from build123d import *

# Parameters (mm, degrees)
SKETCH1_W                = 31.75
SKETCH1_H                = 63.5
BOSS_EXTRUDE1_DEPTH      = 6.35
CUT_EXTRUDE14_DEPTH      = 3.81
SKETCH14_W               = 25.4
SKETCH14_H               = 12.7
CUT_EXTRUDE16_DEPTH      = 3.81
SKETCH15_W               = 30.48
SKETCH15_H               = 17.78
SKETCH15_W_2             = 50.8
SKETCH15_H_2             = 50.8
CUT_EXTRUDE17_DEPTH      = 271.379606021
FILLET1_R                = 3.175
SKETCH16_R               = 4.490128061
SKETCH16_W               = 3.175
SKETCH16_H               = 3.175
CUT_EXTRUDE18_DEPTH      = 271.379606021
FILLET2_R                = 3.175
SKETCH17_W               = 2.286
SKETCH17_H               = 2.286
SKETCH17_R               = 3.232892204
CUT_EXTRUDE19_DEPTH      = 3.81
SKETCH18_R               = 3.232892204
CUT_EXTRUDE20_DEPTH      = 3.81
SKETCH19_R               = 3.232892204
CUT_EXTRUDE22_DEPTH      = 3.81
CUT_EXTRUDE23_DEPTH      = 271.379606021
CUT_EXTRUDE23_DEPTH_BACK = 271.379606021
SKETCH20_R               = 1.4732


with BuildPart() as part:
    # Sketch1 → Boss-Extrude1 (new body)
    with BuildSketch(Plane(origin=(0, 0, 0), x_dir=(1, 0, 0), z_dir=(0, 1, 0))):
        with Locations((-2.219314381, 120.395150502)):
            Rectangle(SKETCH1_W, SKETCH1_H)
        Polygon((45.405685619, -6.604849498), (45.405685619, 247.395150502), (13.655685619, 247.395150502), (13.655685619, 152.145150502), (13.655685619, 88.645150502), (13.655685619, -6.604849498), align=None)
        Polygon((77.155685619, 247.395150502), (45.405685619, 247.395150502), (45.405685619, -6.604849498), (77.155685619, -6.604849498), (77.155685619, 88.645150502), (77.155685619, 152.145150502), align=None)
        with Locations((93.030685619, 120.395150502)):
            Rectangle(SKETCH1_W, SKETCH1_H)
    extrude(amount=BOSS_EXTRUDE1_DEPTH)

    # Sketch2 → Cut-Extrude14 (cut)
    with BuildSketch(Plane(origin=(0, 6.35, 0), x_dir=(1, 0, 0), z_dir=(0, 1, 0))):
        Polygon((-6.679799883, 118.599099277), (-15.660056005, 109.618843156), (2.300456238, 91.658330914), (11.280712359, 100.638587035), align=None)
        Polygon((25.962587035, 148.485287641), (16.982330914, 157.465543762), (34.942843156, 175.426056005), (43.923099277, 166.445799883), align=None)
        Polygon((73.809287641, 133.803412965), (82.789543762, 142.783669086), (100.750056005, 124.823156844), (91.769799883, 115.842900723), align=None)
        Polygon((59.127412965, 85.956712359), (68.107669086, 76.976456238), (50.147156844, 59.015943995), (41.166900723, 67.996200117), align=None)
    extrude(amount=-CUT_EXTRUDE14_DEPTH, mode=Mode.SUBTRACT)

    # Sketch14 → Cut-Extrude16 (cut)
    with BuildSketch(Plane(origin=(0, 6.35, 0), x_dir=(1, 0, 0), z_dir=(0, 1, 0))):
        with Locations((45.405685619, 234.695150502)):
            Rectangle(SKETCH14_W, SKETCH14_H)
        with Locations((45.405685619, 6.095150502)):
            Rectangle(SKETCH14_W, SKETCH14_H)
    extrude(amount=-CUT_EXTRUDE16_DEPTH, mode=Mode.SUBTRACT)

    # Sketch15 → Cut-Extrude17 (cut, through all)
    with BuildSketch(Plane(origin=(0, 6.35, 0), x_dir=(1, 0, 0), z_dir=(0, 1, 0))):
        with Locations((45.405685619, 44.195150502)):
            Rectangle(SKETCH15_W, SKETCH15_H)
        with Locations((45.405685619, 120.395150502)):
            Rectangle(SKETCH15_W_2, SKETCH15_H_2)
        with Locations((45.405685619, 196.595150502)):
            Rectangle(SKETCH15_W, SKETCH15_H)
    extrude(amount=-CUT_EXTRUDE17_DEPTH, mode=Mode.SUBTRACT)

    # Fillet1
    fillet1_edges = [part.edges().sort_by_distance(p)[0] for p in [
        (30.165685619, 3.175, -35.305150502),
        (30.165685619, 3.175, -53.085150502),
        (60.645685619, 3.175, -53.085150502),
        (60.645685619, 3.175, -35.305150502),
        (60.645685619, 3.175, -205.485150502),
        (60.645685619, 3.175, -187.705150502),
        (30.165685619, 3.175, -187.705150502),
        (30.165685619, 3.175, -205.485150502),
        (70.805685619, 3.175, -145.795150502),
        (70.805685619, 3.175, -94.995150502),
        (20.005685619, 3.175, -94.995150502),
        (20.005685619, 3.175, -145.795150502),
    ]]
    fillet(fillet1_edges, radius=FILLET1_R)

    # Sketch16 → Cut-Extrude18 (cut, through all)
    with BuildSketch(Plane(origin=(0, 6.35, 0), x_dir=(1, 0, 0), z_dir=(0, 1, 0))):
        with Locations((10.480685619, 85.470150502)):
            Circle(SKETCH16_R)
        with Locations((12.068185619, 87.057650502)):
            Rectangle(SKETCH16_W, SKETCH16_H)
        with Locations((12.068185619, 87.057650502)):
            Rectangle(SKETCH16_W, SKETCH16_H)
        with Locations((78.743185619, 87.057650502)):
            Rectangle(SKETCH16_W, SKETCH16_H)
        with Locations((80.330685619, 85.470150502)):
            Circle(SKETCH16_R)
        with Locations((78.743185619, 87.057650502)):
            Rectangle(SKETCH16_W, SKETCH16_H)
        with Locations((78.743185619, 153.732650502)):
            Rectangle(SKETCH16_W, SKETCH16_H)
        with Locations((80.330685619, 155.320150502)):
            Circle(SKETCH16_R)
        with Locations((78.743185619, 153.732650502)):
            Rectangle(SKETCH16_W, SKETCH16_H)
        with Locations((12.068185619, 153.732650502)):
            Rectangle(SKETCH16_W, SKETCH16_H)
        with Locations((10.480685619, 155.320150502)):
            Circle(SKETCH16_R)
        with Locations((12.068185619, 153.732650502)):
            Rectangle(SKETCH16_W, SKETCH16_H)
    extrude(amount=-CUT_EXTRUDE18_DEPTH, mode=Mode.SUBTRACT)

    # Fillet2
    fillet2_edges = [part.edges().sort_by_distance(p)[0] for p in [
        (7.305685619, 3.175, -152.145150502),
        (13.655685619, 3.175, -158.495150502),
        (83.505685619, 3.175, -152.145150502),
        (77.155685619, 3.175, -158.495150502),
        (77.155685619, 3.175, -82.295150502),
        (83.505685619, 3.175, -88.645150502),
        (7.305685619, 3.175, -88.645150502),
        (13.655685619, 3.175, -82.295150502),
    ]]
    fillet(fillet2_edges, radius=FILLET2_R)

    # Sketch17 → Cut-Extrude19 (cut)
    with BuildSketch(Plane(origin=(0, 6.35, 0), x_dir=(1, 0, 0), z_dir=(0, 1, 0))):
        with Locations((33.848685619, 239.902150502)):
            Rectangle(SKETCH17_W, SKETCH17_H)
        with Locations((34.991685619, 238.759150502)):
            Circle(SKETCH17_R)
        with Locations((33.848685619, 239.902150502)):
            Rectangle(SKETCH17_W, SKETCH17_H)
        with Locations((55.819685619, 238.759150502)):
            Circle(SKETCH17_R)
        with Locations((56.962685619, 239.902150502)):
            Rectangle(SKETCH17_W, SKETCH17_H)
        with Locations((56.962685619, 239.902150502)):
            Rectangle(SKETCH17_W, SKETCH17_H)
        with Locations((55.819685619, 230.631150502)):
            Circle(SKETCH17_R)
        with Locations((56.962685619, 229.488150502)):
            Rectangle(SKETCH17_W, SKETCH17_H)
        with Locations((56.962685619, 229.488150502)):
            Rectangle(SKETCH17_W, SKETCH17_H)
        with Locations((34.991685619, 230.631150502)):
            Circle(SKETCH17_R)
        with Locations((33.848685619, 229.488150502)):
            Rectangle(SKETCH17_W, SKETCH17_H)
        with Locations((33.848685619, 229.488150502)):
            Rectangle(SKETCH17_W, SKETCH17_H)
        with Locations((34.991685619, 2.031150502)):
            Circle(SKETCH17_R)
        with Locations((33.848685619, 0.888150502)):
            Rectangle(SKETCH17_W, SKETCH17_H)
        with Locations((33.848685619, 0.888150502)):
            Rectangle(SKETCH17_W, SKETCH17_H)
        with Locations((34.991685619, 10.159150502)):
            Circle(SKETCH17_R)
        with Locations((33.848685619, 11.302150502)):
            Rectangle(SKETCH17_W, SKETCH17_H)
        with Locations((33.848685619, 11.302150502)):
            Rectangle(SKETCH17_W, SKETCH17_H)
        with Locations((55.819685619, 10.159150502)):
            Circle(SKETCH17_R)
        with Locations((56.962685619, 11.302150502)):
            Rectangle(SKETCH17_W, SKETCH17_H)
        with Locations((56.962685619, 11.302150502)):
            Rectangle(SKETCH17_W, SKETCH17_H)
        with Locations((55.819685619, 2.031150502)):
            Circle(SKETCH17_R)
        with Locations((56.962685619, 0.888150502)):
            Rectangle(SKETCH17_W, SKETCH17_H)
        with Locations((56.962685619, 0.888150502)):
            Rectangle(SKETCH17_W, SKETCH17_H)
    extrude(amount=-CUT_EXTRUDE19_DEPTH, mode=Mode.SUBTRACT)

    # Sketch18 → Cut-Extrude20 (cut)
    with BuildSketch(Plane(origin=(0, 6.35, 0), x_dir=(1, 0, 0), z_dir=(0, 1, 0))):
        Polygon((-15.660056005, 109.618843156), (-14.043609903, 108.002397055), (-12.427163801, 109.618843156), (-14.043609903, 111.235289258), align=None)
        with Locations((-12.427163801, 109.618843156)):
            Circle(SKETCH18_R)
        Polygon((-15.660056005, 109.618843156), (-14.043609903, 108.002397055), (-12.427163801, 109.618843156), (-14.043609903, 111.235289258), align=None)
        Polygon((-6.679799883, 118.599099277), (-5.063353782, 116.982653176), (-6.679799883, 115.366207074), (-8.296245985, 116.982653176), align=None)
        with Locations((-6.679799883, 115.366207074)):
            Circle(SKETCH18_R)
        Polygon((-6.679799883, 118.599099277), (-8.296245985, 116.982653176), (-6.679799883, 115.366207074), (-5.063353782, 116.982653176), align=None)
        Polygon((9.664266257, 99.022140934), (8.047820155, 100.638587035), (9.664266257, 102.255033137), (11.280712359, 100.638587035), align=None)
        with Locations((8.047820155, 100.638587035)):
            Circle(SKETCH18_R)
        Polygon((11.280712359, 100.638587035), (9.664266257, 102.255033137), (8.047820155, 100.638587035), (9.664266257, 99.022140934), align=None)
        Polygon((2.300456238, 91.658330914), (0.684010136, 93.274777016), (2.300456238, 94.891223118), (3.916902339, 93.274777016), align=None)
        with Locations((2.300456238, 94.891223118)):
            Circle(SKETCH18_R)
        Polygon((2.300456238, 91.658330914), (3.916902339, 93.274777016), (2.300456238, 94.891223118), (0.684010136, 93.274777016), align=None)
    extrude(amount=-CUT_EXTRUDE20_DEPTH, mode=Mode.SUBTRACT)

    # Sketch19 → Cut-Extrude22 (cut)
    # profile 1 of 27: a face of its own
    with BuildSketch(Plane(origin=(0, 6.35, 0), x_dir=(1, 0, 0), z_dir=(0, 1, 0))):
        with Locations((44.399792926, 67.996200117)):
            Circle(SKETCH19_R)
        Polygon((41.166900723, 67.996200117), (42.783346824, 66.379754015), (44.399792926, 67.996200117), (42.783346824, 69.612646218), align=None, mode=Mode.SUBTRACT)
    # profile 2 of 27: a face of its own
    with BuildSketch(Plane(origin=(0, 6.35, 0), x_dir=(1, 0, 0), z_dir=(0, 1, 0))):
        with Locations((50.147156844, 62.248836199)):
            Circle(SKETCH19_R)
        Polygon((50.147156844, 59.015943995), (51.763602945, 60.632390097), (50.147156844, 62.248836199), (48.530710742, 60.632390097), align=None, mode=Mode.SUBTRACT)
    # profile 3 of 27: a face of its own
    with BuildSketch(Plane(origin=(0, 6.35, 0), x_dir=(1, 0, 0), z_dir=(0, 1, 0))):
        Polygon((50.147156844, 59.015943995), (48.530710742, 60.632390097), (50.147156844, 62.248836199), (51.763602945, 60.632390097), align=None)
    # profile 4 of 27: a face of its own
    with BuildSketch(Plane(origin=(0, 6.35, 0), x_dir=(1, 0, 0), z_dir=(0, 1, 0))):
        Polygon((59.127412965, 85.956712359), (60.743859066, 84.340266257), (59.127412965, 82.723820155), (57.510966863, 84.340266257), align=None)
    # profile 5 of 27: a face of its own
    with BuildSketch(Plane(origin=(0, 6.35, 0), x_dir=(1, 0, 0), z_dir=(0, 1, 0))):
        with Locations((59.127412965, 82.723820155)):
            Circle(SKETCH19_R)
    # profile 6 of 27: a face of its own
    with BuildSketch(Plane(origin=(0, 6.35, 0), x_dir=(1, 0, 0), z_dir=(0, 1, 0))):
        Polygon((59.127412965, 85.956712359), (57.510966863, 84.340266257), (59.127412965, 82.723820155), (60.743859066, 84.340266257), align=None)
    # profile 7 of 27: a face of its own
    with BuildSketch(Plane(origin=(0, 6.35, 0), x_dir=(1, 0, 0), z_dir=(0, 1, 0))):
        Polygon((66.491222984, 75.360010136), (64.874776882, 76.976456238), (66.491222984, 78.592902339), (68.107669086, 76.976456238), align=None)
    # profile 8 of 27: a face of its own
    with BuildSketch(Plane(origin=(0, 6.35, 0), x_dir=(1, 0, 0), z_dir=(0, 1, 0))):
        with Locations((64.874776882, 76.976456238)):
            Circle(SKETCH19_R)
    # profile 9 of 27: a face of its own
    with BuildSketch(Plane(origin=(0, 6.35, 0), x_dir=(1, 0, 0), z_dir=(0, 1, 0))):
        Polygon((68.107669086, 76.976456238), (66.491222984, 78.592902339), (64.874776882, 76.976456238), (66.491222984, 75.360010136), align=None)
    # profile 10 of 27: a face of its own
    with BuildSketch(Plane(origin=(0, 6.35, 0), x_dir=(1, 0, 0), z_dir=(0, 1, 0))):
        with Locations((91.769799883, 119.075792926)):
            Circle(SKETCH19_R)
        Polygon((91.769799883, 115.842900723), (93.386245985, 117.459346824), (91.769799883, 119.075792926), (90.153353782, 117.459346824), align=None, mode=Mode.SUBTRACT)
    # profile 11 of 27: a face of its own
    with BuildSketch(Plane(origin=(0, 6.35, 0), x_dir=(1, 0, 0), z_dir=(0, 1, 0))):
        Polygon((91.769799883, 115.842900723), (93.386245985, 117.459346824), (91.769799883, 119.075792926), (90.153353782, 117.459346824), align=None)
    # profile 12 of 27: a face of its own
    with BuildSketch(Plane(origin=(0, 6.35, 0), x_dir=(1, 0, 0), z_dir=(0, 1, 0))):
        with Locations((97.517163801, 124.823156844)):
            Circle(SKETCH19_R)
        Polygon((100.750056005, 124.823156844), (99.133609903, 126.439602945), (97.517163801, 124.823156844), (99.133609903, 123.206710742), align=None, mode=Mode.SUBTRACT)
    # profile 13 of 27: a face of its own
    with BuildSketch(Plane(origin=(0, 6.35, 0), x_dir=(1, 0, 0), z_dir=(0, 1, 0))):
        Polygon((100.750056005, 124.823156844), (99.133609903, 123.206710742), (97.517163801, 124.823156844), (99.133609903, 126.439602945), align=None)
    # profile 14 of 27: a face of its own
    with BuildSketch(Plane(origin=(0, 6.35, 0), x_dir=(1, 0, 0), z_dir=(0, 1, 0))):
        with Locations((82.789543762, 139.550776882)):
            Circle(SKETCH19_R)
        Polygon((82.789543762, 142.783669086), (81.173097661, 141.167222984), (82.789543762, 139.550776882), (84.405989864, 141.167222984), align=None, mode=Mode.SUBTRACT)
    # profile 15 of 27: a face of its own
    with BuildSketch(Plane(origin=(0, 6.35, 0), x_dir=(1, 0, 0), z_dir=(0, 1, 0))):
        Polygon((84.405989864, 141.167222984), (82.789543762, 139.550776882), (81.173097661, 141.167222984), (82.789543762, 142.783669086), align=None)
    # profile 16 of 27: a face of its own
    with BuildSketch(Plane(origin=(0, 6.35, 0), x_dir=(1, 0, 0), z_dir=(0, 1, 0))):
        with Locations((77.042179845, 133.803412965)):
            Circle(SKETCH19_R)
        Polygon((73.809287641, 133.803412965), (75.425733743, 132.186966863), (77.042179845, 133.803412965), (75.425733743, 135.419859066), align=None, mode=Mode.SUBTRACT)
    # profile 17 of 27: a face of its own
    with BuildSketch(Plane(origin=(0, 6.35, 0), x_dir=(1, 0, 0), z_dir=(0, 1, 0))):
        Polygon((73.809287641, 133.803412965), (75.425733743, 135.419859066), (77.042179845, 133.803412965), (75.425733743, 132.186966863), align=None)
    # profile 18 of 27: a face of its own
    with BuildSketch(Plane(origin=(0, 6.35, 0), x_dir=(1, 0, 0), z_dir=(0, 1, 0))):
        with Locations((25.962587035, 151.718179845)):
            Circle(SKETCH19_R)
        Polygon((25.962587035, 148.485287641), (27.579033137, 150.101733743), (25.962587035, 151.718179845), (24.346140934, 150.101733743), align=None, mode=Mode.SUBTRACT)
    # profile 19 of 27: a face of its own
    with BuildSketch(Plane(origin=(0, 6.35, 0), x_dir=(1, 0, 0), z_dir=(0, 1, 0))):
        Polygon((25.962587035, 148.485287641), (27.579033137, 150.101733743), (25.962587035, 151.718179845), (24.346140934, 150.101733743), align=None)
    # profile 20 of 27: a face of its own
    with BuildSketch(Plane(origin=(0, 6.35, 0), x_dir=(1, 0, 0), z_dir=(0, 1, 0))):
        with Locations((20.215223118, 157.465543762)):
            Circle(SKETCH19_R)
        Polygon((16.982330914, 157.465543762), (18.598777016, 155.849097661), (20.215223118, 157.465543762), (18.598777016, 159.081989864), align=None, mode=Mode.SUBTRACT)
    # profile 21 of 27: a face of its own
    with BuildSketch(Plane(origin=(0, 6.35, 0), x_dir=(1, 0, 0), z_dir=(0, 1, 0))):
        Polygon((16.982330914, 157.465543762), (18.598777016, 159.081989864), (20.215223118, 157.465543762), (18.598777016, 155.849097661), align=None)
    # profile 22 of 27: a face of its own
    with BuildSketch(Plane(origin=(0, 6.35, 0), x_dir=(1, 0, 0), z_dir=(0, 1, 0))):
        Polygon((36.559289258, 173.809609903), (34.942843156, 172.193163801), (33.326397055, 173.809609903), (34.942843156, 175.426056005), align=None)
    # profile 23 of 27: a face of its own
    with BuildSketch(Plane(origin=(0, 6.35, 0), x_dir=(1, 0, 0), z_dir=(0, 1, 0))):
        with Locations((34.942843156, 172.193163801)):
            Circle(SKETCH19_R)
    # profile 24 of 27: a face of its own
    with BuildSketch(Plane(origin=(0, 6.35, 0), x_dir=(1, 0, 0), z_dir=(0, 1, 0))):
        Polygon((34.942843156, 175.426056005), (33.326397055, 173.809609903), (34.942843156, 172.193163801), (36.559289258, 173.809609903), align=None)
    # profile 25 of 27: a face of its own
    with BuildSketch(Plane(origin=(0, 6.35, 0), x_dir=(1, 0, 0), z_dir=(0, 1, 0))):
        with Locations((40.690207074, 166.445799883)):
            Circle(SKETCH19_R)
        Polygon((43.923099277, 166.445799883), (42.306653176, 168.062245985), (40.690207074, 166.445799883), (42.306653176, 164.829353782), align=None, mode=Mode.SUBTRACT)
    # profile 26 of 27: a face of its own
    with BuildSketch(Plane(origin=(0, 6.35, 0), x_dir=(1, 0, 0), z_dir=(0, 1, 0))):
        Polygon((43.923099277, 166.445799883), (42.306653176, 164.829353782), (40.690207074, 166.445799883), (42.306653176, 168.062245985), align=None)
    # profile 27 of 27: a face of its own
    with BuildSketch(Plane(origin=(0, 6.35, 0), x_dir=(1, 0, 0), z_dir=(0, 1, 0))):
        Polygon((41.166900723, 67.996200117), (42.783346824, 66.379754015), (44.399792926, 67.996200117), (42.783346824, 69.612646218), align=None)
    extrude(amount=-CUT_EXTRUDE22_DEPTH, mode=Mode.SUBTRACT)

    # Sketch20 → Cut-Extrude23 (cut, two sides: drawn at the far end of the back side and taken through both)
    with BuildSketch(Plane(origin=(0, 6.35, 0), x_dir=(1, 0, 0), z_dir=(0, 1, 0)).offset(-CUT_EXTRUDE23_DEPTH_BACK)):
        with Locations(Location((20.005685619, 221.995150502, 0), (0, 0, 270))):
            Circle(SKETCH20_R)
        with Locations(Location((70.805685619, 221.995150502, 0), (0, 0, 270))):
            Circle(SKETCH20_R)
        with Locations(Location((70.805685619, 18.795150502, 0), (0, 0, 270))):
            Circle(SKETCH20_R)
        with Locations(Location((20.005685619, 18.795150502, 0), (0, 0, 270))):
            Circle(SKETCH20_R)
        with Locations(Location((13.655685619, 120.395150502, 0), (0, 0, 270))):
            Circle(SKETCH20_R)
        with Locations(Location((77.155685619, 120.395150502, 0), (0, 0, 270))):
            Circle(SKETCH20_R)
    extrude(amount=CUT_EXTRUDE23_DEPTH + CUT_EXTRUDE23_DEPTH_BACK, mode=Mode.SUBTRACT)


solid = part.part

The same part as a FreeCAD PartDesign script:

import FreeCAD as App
import Part
import Sketcher

V = App.Vector
Q = App.Units.Quantity


def edges_at(feature, points):
    """Names of the edges that pass closest to the given points."""
    edges = feature.Shape.Edges
    near = lambda p: min(range(len(edges)), key=lambda i: edges[i].distToShape(Part.Vertex(*p))[0])
    return sorted({f"Edge{near(p) + 1}" for p in points})

doc = App.newDocument("Part")
body = doc.addObject("PartDesign::Body", "Body")

# Sketch on XZ plane
sketch1 = body.newObject("Sketcher::SketchObject", "Sketch")
sketch1.AttachmentSupport = (doc.getObject("XZ_Plane"), [""])
sketch1.MapMode = "FlatFace"
sketch1.addGeometry([
    Part.LineSegment(V(-18, -152, 0), V(-18, -89, 0)),  # 0
    Part.LineSegment(V(-18, -89, 0), V(14, -89, 0)),  # 1
    Part.LineSegment(V(14, -89, 0), V(14, 7, 0)),  # 2
    Part.LineSegment(V(14, 7, 0), V(77, 7, 0)),  # 3
    Part.LineSegment(V(77, 7, 0), V(77, -89, 0)),  # 4
    Part.LineSegment(V(77, -89, 0), V(109, -89, 0)),  # 5
    Part.LineSegment(V(109, -89, 0), V(109, -152, 0)),  # 6
    Part.LineSegment(V(109, -152, 0), V(77, -152, 0)),  # 7
    Part.LineSegment(V(77, -152, 0), V(77, -247, 0)),  # 8
    Part.LineSegment(V(77, -247, 0), V(14, -247, 0)),  # 9
    Part.LineSegment(V(14, -247, 0), V(14, -152, 0)),  # 10
    Part.LineSegment(V(14, -152, 0), V(-18, -152, 0)),  # 11
], False)
sketch1.addConstraint([
    Sketcher.Constraint("Coincident", 0, 2, 1, 1),
    Sketcher.Constraint("Coincident", 1, 2, 2, 1),
    Sketcher.Constraint("Coincident", 2, 2, 3, 1),
    Sketcher.Constraint("Coincident", 3, 2, 4, 1),
    Sketcher.Constraint("Coincident", 4, 2, 5, 1),
    Sketcher.Constraint("Coincident", 5, 2, 6, 1),
    Sketcher.Constraint("Coincident", 6, 2, 7, 1),
    Sketcher.Constraint("Coincident", 7, 2, 8, 1),
    Sketcher.Constraint("Coincident", 8, 2, 9, 1),
    Sketcher.Constraint("Coincident", 9, 2, 10, 1),
    Sketcher.Constraint("Coincident", 10, 2, 11, 1),
    Sketcher.Constraint("Coincident", 11, 2, 0, 1),
    Sketcher.Constraint("Vertical", 0),
    Sketcher.Constraint("Horizontal", 1),
    Sketcher.Constraint("Vertical", 2),
    Sketcher.Constraint("Horizontal", 3),
    Sketcher.Constraint("Vertical", 4),
    Sketcher.Constraint("Horizontal", 5),
    Sketcher.Constraint("Vertical", 6),
    Sketcher.Constraint("Horizontal", 7),
    Sketcher.Constraint("Vertical", 8),
    Sketcher.Constraint("Horizontal", 9),
    Sketcher.Constraint("Vertical", 10),
    Sketcher.Constraint("Horizontal", 11),
    Sketcher.Constraint("Horizontal", 1, 2, 4, 2),
    Sketcher.Constraint("Horizontal", 7, 2, 10, 2),
    Sketcher.Constraint("Vertical", 4, 2, 7, 2),
    Sketcher.Constraint("Vertical", 2, 2, 9, 2),
    Sketcher.Constraint("Equal", 1, 5),
    Sketcher.Constraint("Equal", 9, 0),
    Sketcher.Constraint("Equal", 4, 8),
    Sketcher.Constraint("DistanceX", 3, 1, 3, 2, Q("2.5 in")),
    Sketcher.Constraint("DistanceX", 0, 2, 5, 2, Q("5 in")),
    Sketcher.Constraint("DistanceY", 2, 1, 2, 2, Q("3.75 in")),
    Sketcher.Constraint("DistanceY", 0, 2, -1, 1, Q("88.645151 mm")),
    Sketcher.Constraint("DistanceX", 0, 2, -1, 1, Q("18.094314 mm")),
])
pad1 = body.newObject("PartDesign::Pad", "Pad")
pad1.Profile = sketch1
pad1.Length = Q("0.25 in")
pad1.Reversed = True

# Sketch on XZ plane
sketch2 = body.newObject("Sketcher::SketchObject", "Sketch001")
sketch2.AttachmentSupport = (doc.getObject("XZ_Plane"), [""])
sketch2.MapMode = "FlatFace"
sketch2.AttachmentOffset = App.Placement(V(0, 0, -0.25 * 25.4), App.Rotation())
sketch2.addGeometry([
    Part.LineSegment(V(-7, -119, 0), V(-16, -110, 0)),  # 0
    Part.LineSegment(V(-16, -110, 0), V(2, -92, 0)),  # 1
    Part.LineSegment(V(2, -92, 0), V(11, -101, 0)),  # 2
    Part.LineSegment(V(11, -101, 0), V(-7, -119, 0)),  # 3
    Part.LineSegment(V(17, -157, 0), V(26, -148, 0)),  # 4
    Part.LineSegment(V(26, -148, 0), V(44, -166, 0)),  # 5
    Part.LineSegment(V(44, -166, 0), V(35, -175, 0)),  # 6
    Part.LineSegment(V(35, -175, 0), V(17, -157, 0)),  # 7
    Part.LineSegment(V(83, -143, 0), V(74, -134, 0)),  # 8
    Part.LineSegment(V(74, -134, 0), V(92, -116, 0)),  # 9
    Part.LineSegment(V(92, -116, 0), V(101, -125, 0)),  # 10
    Part.LineSegment(V(101, -125, 0), V(83, -143, 0)),  # 11
    Part.LineSegment(V(68, -77, 0), V(59, -86, 0)),  # 12
    Part.LineSegment(V(59, -86, 0), V(41, -68, 0)),  # 13
    Part.LineSegment(V(41, -68, 0), V(50, -59, 0)),  # 14
    Part.LineSegment(V(50, -59, 0), V(68, -77, 0)),  # 15
], False)
sketch2.addConstraint([
    Sketcher.Constraint("Coincident", 0, 2, 1, 1),
    Sketcher.Constraint("Coincident", 1, 2, 2, 1),
    Sketcher.Constraint("Coincident", 2, 2, 3, 1),
    Sketcher.Constraint("Coincident", 3, 2, 0, 1),
    Sketcher.Constraint("Coincident", 4, 2, 5, 1),
    Sketcher.Constraint("Coincident", 5, 2, 6, 1),
    Sketcher.Constraint("Coincident", 6, 2, 7, 1),
    Sketcher.Constraint("Coincident", 7, 2, 4, 1),
    Sketcher.Constraint("Coincident", 8, 2, 9, 1),
    Sketcher.Constraint("Coincident", 9, 2, 10, 1),
    Sketcher.Constraint("Coincident", 10, 2, 11, 1),
    Sketcher.Constraint("Coincident", 11, 2, 8, 1),
    Sketcher.Constraint("Coincident", 12, 2, 13, 1),
    Sketcher.Constraint("Coincident", 13, 2, 14, 1),
    Sketcher.Constraint("Coincident", 14, 2, 15, 1),
    Sketcher.Constraint("Coincident", 15, 2, 12, 1),
    Sketcher.Constraint("Perpendicular", 0, 1),
    Sketcher.Constraint("Perpendicular", 1, 2),
    Sketcher.Constraint("Perpendicular", 2, 3),
    Sketcher.Constraint("Parallel", 3, 4),
    Sketcher.Constraint("Perpendicular", 4, 5),
    Sketcher.Constraint("Perpendicular", 5, 6),
    Sketcher.Constraint("Perpendicular", 6, 7),
    Sketcher.Constraint("Parallel", 7, 8),
    Sketcher.Constraint("Perpendicular", 8, 9),
    Sketcher.Constraint("Perpendicular", 9, 10),
    Sketcher.Constraint("Perpendicular", 10, 11),
    Sketcher.Constraint("Parallel", 11, 12),
    Sketcher.Constraint("Perpendicular", 12, 13),
    Sketcher.Constraint("Perpendicular", 13, 14),
    Sketcher.Constraint("Perpendicular", 14, 15),
    Sketcher.Constraint("Equal", 2, 4),
    Sketcher.Constraint("Equal", 3, 5),
    Sketcher.Constraint("Equal", 6, 8),
    Sketcher.Constraint("Equal", 7, 9),
    Sketcher.Constraint("Equal", 10, 12),
    Sketcher.Constraint("Equal", 11, 13),
    Sketcher.Constraint("Distance", 1, Q("1 in")),
    Sketcher.Constraint("Angle", 0, Q("135 deg")),
    Sketcher.Constraint("Distance", 0, Q("0.5 in")),
    Sketcher.Constraint("DistanceX", 3, 2, -1, 1, Q("6.6798 mm")),
    Sketcher.Constraint("DistanceY", 3, 2, -1, 1, Q("118.599099 mm")),
    Sketcher.Constraint("DistanceX", -1, 1, 5, 2, Q("43.923099 mm")),
    Sketcher.Constraint("DistanceY", 5, 2, -1, 1, Q("166.4458 mm")),
    Sketcher.Constraint("DistanceX", -1, 1, 9, 2, Q("91.7698 mm")),
    Sketcher.Constraint("DistanceY", 9, 2, -1, 1, Q("115.842901 mm")),
    Sketcher.Constraint("DistanceX", -1, 1, 13, 2, Q("41.166901 mm")),
    Sketcher.Constraint("DistanceY", 13, 2, -1, 1, Q("67.9962 mm")),
])
pocket1 = body.newObject("PartDesign::Pocket", "Pocket")
pocket1.Profile = sketch2
pocket1.Length = Q("0.15 in")
pocket1.Reversed = True

# Sketch on XZ plane
sketch3 = body.newObject("Sketcher::SketchObject", "Sketch002")
sketch3.AttachmentSupport = (doc.getObject("XZ_Plane"), [""])
sketch3.MapMode = "FlatFace"
sketch3.AttachmentOffset = App.Placement(V(0, 0, -0.25 * 25.4), App.Rotation())
sketch3.addGeometry([
    Part.LineSegment(V(33, -241, 0), V(33, -228, 0)),  # 0
    Part.LineSegment(V(33, -228, 0), V(58, -228, 0)),  # 1
    Part.LineSegment(V(58, -228, 0), V(58, -241, 0)),  # 2
    Part.LineSegment(V(58, -241, 0), V(33, -241, 0)),  # 3
    Part.LineSegment(V(33, -12, 0), V(33, 0, 0)),  # 4
    Part.LineSegment(V(33, 0, 0), V(58, 0, 0)),  # 5
    Part.LineSegment(V(58, 0, 0), V(58, -12, 0)),  # 6
    Part.LineSegment(V(58, -12, 0), V(33, -12, 0)),  # 7
], False)
sketch3.addConstraint([
    Sketcher.Constraint("Coincident", 0, 2, 1, 1),
    Sketcher.Constraint("Coincident", 1, 2, 2, 1),
    Sketcher.Constraint("Coincident", 2, 2, 3, 1),
    Sketcher.Constraint("Coincident", 3, 2, 0, 1),
    Sketcher.Constraint("Coincident", 4, 2, 5, 1),
    Sketcher.Constraint("Coincident", 5, 2, 6, 1),
    Sketcher.Constraint("Coincident", 6, 2, 7, 1),
    Sketcher.Constraint("Coincident", 7, 2, 4, 1),
    Sketcher.Constraint("Vertical", 0),
    Sketcher.Constraint("Horizontal", 1),
    Sketcher.Constraint("Vertical", 2),
    Sketcher.Constraint("Horizontal", 3),
    Sketcher.Constraint("Vertical", 4),
    Sketcher.Constraint("Horizontal", 5),
    Sketcher.Constraint("Vertical", 6),
    Sketcher.Constraint("Horizontal", 7),
    Sketcher.Constraint("Vertical", 3, 2, 4, 2),
    Sketcher.Constraint("Vertical", 2, 2, 5, 2),
    Sketcher.Constraint("Equal", 2, 4),
    Sketcher.Constraint("DistanceX", 1, 1, 1, 2, Q("1 in")),
    Sketcher.Constraint("DistanceY", 0, 1, 0, 2, Q("0.5 in")),
    Sketcher.Constraint("DistanceY", 0, 2, 4, 2, Q("9 in")),
    Sketcher.Constraint("DistanceY", 0, 2, -1, 1, Q("228.345151 mm")),
    Sketcher.Constraint("DistanceX", -1, 1, 0, 2, Q("32.705686 mm")),
])
pocket2 = body.newObject("PartDesign::Pocket", "Pocket001")
pocket2.Profile = sketch3
pocket2.Length = Q("0.15 in")
pocket2.Reversed = True

# Sketch on XZ plane
sketch4 = body.newObject("Sketcher::SketchObject", "Sketch003")
sketch4.AttachmentSupport = (doc.getObject("XZ_Plane"), [""])
sketch4.MapMode = "FlatFace"
sketch4.AttachmentOffset = App.Placement(V(0, 0, -0.25 * 25.4), App.Rotation())
sketch4.addGeometry([
    Part.LineSegment(V(30, -53, 0), V(30, -35, 0)),  # 0
    Part.LineSegment(V(30, -35, 0), V(61, -35, 0)),  # 1
    Part.LineSegment(V(61, -35, 0), V(61, -53, 0)),  # 2
    Part.LineSegment(V(61, -53, 0), V(30, -53, 0)),  # 3
    Part.LineSegment(V(20, -146, 0), V(20, -95, 0)),  # 4
    Part.LineSegment(V(20, -95, 0), V(71, -95, 0)),  # 5
    Part.LineSegment(V(71, -95, 0), V(71, -146, 0)),  # 6
    Part.LineSegment(V(71, -146, 0), V(20, -146, 0)),  # 7
    Part.LineSegment(V(30, -205, 0), V(30, -188, 0)),  # 8
    Part.LineSegment(V(30, -188, 0), V(61, -188, 0)),  # 9
    Part.LineSegment(V(61, -188, 0), V(61, -205, 0)),  # 10
    Part.LineSegment(V(61, -205, 0), V(30, -205, 0)),  # 11
], False)
sketch4.addConstraint([
    Sketcher.Constraint("Coincident", 0, 2, 1, 1),
    Sketcher.Constraint("Coincident", 1, 2, 2, 1),
    Sketcher.Constraint("Coincident", 2, 2, 3, 1),
    Sketcher.Constraint("Coincident", 3, 2, 0, 1),
    Sketcher.Constraint("Coincident", 4, 2, 5, 1),
    Sketcher.Constraint("Coincident", 5, 2, 6, 1),
    Sketcher.Constraint("Coincident", 6, 2, 7, 1),
    Sketcher.Constraint("Coincident", 7, 2, 4, 1),
    Sketcher.Constraint("Coincident", 8, 2, 9, 1),
    Sketcher.Constraint("Coincident", 9, 2, 10, 1),
    Sketcher.Constraint("Coincident", 10, 2, 11, 1),
    Sketcher.Constraint("Coincident", 11, 2, 8, 1),
    Sketcher.Constraint("Vertical", 0),
    Sketcher.Constraint("Horizontal", 1),
    Sketcher.Constraint("Vertical", 2),
    Sketcher.Constraint("Horizontal", 3),
    Sketcher.Constraint("Vertical", 4),
    Sketcher.Constraint("Horizontal", 5),
    Sketcher.Constraint("Vertical", 6),
    Sketcher.Constraint("Horizontal", 7),
    Sketcher.Constraint("Vertical", 8),
    Sketcher.Constraint("Horizontal", 9),
    Sketcher.Constraint("Vertical", 10),
    Sketcher.Constraint("Horizontal", 11),
    Sketcher.Constraint("Vertical", 3, 2, 8, 2),
    Sketcher.Constraint("Vertical", 2, 2, 9, 2),
    Sketcher.Constraint("Equal", 7, 4),
    Sketcher.Constraint("Equal", 2, 8),
    Sketcher.Constraint("DistanceX", 5, 1, 5, 2, Q("2 in")),
    Sketcher.Constraint("DistanceX", 1, 1, 1, 2, Q("1.2 in")),
    Sketcher.Constraint("DistanceY", 0, 1, 0, 2, Q("0.7 in")),
    Sketcher.Constraint("DistanceX", 4, 2, 3, 2, Q("0.4 in")),
    Sketcher.Constraint("DistanceY", 8, 2, 3, 2, Q("5.3 in")),
    Sketcher.Constraint("DistanceY", 4, 2, 3, 2, Q("1.65 in")),
    Sketcher.Constraint("DistanceY", 0, 2, -1, 1, Q("35.305151 mm")),
    Sketcher.Constraint("DistanceX", -1, 1, 0, 2, Q("30.165686 mm")),
])
pocket3 = body.newObject("PartDesign::Pocket", "Pocket002")
pocket3.Profile = sketch4
pocket3.Type = "ThroughAll"
pocket3.Reversed = True
doc.recompute()

fillet = body.newObject("PartDesign::Fillet", "Fillet")
fillet.Base = (pocket3, edges_at(pocket3, [
    (30.166, 3.175, -35.305),
    (30.166, 3.175, -53.085),
    (60.646, 3.175, -53.085),
    (60.646, 3.175, -35.305),
    (60.646, 3.175, -205.485),
    (60.646, 3.175, -187.705),
    (30.166, 3.175, -187.705),
    (30.166, 3.175, -205.485),
    (70.806, 3.175, -145.795),
    (70.806, 3.175, -94.995),
    (20.006, 3.175, -94.995),
    (20.006, 3.175, -145.795),
]))
fillet.Radius = Q("0.125 in")

# Sketch on XZ plane
sketch5 = body.newObject("Sketcher::SketchObject", "Sketch004")
sketch5.AttachmentSupport = (doc.getObject("XZ_Plane"), [""])
sketch5.MapMode = "FlatFace"
sketch5.AttachmentOffset = App.Placement(V(0, 0, -0.25 * 25.4), App.Rotation())
sketch5.addGeometry([
    Part.Circle(V(10.5, -85.5, 0), V(0, 0, 1), 4.5),
    Part.Circle(V(80.3, -85.5, 0), V(0, 0, 1), 4.5),
    Part.Circle(V(80.3, -155.3, 0), V(0, 0, 1), 4.5),
    Part.Circle(V(10.5, -155.3, 0), V(0, 0, 1), 4.5),
], False)
sketch5.addConstraint([
    Sketcher.Constraint("Equal", 0, 1),
    Sketcher.Constraint("Equal", 1, 2),
    Sketcher.Constraint("Equal", 2, 3),
    Sketcher.Constraint("Horizontal", 0, 3, 1, 3),
    Sketcher.Constraint("Horizontal", 2, 3, 3, 3),
    Sketcher.Constraint("Vertical", 1, 3, 2, 3),
    Sketcher.Constraint("Vertical", 0, 3, 3, 3),
    Sketcher.Constraint("DistanceX", 0, 3, 1, 3, Q("2.75 in")),
    Sketcher.Constraint("DistanceY", 2, 3, 1, 3, Q("2.75 in")),
    Sketcher.Constraint("Diameter", 0, Q("8.980256 mm")),
    Sketcher.Constraint("DistanceY", 0, 3, -1, 1, Q("85.470151 mm")),
    Sketcher.Constraint("DistanceX", -1, 1, 0, 3, Q("10.480686 mm")),
])
pocket4 = body.newObject("PartDesign::Pocket", "Pocket003")
pocket4.Profile = sketch5
pocket4.Type = "ThroughAll"
pocket4.Reversed = True
doc.recompute()

fillet2 = body.newObject("PartDesign::Fillet", "Fillet001")
fillet2.Base = (pocket4, edges_at(pocket4, [
    (7.306, 3.175, -152.145),
    (13.656, 3.175, -158.495),
    (83.506, 3.175, -152.145),
    (77.156, 3.175, -158.495),
    (77.156, 3.175, -82.295),
    (83.506, 3.175, -88.645),
    (7.306, 3.175, -88.645),
    (13.656, 3.175, -82.295),
]))
fillet2.Radius = Q("0.125 in")

# Sketch on XZ plane
sketch6 = body.newObject("Sketcher::SketchObject", "Sketch005")
sketch6.AttachmentSupport = (doc.getObject("XZ_Plane"), [""])
sketch6.MapMode = "FlatFace"
sketch6.AttachmentOffset = App.Placement(V(0, 0, -0.25 * 25.4), App.Rotation())
sketch6.addGeometry([
    Part.Circle(V(35, -238.8, 0), V(0, 0, 1), 3.2),  # 0
    Part.Circle(V(55.8, -238.8, 0), V(0, 0, 1), 3.2),  # 1
    Part.Circle(V(55.8, -230.6, 0), V(0, 0, 1), 3.2),  # 2
    Part.Circle(V(35, -230.6, 0), V(0, 0, 1), 3.2),  # 3
    Part.Circle(V(35, -2, 0), V(0, 0, 1), 3.2),  # 4
    Part.Circle(V(35, -10.2, 0), V(0, 0, 1), 3.2),  # 5
    Part.Circle(V(55.8, -10.2, 0), V(0, 0, 1), 3.2),  # 6
    Part.Circle(V(55.8, -2, 0), V(0, 0, 1), 3.2),  # 7
], False)
sketch6.addConstraint([
    Sketcher.Constraint("Equal", 0, 1),
    Sketcher.Constraint("Equal", 1, 2),
    Sketcher.Constraint("Equal", 2, 3),
    Sketcher.Constraint("Equal", 3, 4),
    Sketcher.Constraint("Equal", 4, 5),
    Sketcher.Constraint("Equal", 5, 6),
    Sketcher.Constraint("Equal", 6, 7),
    Sketcher.Constraint("Horizontal", 0, 3, 1, 3),
    Sketcher.Constraint("Horizontal", 2, 3, 3, 3),
    Sketcher.Constraint("Horizontal", 5, 3, 6, 3),
    Sketcher.Constraint("Horizontal", 4, 3, 7, 3),
    Sketcher.Constraint("Vertical", 1, 3, 2, 3),
    Sketcher.Constraint("Vertical", 0, 3, 3, 3),
    Sketcher.Constraint("Vertical", 3, 3, 4, 3),
    Sketcher.Constraint("Vertical", 4, 3, 5, 3),
    Sketcher.Constraint("Vertical", 2, 3, 6, 3),
    Sketcher.Constraint("Vertical", 6, 3, 7, 3),
    Sketcher.Constraint("DistanceY", 3, 3, 4, 3, Q("9 in")),
    Sketcher.Constraint("DistanceY", 0, 3, 5, 3, Q("9 in")),
    Sketcher.Constraint("DistanceX", 0, 3, 1, 3, Q("0.82 in")),
    Sketcher.Constraint("DistanceY", 1, 3, 2, 3, Q("0.32 in")),
    Sketcher.Constraint("Diameter", 0, Q("6.465784 mm")),
    Sketcher.Constraint("DistanceY", 0, 3, -1, 1, Q("238.759151 mm")),
    Sketcher.Constraint("DistanceX", -1, 1, 0, 3, Q("34.991686 mm")),
])
pocket5 = body.newObject("PartDesign::Pocket", "Pocket004")
pocket5.Profile = sketch6
pocket5.Length = Q("0.15 in")
pocket5.Reversed = True

# Sketch on XZ plane
sketch7 = body.newObject("Sketcher::SketchObject", "Sketch006")
sketch7.AttachmentSupport = (doc.getObject("XZ_Plane"), [""])
sketch7.MapMode = "FlatFace"
sketch7.AttachmentOffset = App.Placement(V(0, 0, -0.25 * 25.4), App.Rotation())
sketch7.addGeometry([
    Part.Circle(V(-12.4, -109.6, 0), V(0, 0, 1), 3.2),
    Part.Circle(V(-6.7, -115.4, 0), V(0, 0, 1), 3.2),
    Part.Circle(V(8, -100.6, 0), V(0, 0, 1), 3.2),
    Part.Circle(V(2.3, -94.9, 0), V(0, 0, 1), 3.2),
], False)
sketch7.addConstraint([
    Sketcher.Constraint("Equal", 0, 1),
    Sketcher.Constraint("Equal", 1, 2),
    Sketcher.Constraint("Equal", 2, 3),
    Sketcher.Constraint("Diameter", 0, Q("6.465784 mm")),
    Sketcher.Constraint("DistanceX", 1, 3, -1, 1, Q("6.6798 mm")),
    Sketcher.Constraint("DistanceX", -1, 1, 2, 3, Q("8.04782 mm")),
    Sketcher.Constraint("DistanceY", 1, 3, 2, 3, Q("14.72762 mm")),
    Sketcher.Constraint("DistanceX", 0, 3, 3, 3, Q("14.72762 mm")),
    Sketcher.Constraint("DistanceY", 0, 3, 3, 3, Q("14.72762 mm")),
    Sketcher.Constraint("DistanceX", 0, 3, -1, 1, Q("12.427164 mm")),
    Sketcher.Constraint("DistanceY", 0, 3, -1, 1, Q("109.618843 mm")),
    Sketcher.Constraint("DistanceY", 1, 3, -1, 1, Q("115.366207 mm")),
])
pocket6 = body.newObject("PartDesign::Pocket", "Pocket005")
pocket6.Profile = sketch7
pocket6.Length = Q("0.15 in")
pocket6.Reversed = True

# Sketch on XZ plane
sketch8 = body.newObject("Sketcher::SketchObject", "Sketch007")
sketch8.AttachmentSupport = (doc.getObject("XZ_Plane"), [""])
sketch8.MapMode = "FlatFace"
sketch8.AttachmentOffset = App.Placement(V(0, 0, -0.25 * 25.4), App.Rotation())
sketch8.addGeometry([
    Part.Circle(V(44.4, -68, 0), V(0, 0, 1), 3.2),  # 0
    Part.Circle(V(50.1, -62.2, 0), V(0, 0, 1), 3.2),  # 1
    Part.Circle(V(59.1, -82.7, 0), V(0, 0, 1), 3.2),  # 2
    Part.Circle(V(64.9, -77, 0), V(0, 0, 1), 3.2),  # 3
    Part.Circle(V(91.8, -119.1, 0), V(0, 0, 1), 3.2),  # 4
    Part.Circle(V(97.5, -124.8, 0), V(0, 0, 1), 3.2),  # 5
    Part.Circle(V(82.8, -139.6, 0), V(0, 0, 1), 3.2),  # 6
    Part.Circle(V(77, -133.8, 0), V(0, 0, 1), 3.2),  # 7
    Part.Circle(V(26, -151.7, 0), V(0, 0, 1), 3.2),  # 8
    Part.Circle(V(20.2, -157.5, 0), V(0, 0, 1), 3.2),  # 9
    Part.Circle(V(34.9, -172.2, 0), V(0, 0, 1), 3.2),  # 10
    Part.Circle(V(40.7, -166.4, 0), V(0, 0, 1), 3.2),  # 11
], False)
sketch8.addConstraint([
    Sketcher.Constraint("Equal", 0, 1),
    Sketcher.Constraint("Equal", 1, 2),
    Sketcher.Constraint("Equal", 2, 3),
    Sketcher.Constraint("Equal", 3, 4),
    Sketcher.Constraint("Equal", 4, 5),
    Sketcher.Constraint("Equal", 5, 6),
    Sketcher.Constraint("Equal", 6, 7),
    Sketcher.Constraint("Equal", 7, 8),
    Sketcher.Constraint("Equal", 8, 9),
    Sketcher.Constraint("Equal", 9, 10),
    Sketcher.Constraint("Equal", 10, 11),
    Sketcher.Constraint("Diameter", 0, Q("6.465784 mm")),
    Sketcher.Constraint("DistanceY", 0, 3, -1, 1, Q("67.9962 mm")),
    Sketcher.Constraint("DistanceX", -1, 1, 4, 3, Q("91.7698 mm")),
    Sketcher.Constraint("DistanceY", 11, 3, -1, 1, Q("166.4458 mm")),
    Sketcher.Constraint("DistanceY", 5, 3, 3, 3, Q("47.846701 mm")),
    Sketcher.Constraint("DistanceX", 10, 3, 6, 3, Q("47.846701 mm")),
    Sketcher.Constraint("DistanceY", 2, 3, -1, 1, Q("82.72382 mm")),
    Sketcher.Constraint("DistanceX", -1, 1, 7, 3, Q("77.04218 mm")),
    Sketcher.Constraint("DistanceY", 8, 3, -1, 1, Q("151.71818 mm")),
    Sketcher.Constraint("DistanceX", 0, 3, 2, 3, Q("14.72762 mm")),
    Sketcher.Constraint("DistanceX", 1, 3, 3, 3, Q("14.72762 mm")),
    Sketcher.Constraint("DistanceY", 3, 3, 1, 3, Q("14.72762 mm")),
    Sketcher.Constraint("DistanceX", 2, 3, 5, 3, Q("38.389751 mm")),
    Sketcher.Constraint("DistanceX", 6, 3, 5, 3, Q("14.72762 mm")),
    Sketcher.Constraint("DistanceY", 6, 3, 5, 3, Q("14.72762 mm")),
    Sketcher.Constraint("DistanceY", 7, 3, 4, 3, Q("14.72762 mm")),
    Sketcher.Constraint("DistanceY", 9, 3, 7, 3, Q("23.662131 mm")),
    Sketcher.Constraint("DistanceX", 9, 3, 6, 3, Q("62.574321 mm")),
    Sketcher.Constraint("DistanceY", 10, 3, 9, 3, Q("14.72762 mm")),
    Sketcher.Constraint("DistanceX", 8, 3, 11, 3, Q("14.72762 mm")),
    Sketcher.Constraint("DistanceX", -1, 1, 0, 3, Q("44.399793 mm")),
    Sketcher.Constraint("DistanceX", -1, 1, 1, 3, Q("50.147157 mm")),
    Sketcher.Constraint("DistanceY", 1, 3, -1, 1, Q("62.248836 mm")),
    Sketcher.Constraint("DistanceY", 4, 3, -1, 1, Q("119.075793 mm")),
    Sketcher.Constraint("DistanceX", -1, 1, 8, 3, Q("25.962587 mm")),
])
pocket7 = body.newObject("PartDesign::Pocket", "Pocket006")
pocket7.Profile = sketch8
pocket7.Length = Q("0.15 in")
pocket7.Reversed = True

# Sketch on XZ plane
sketch9 = body.newObject("Sketcher::SketchObject", "Sketch008")
sketch9.AttachmentSupport = (doc.getObject("XZ_Plane"), [""])
sketch9.MapMode = "FlatFace"
sketch9.AttachmentOffset = App.Placement(V(0, 0, -0.25 * 25.4), App.Rotation())
sketch9.addGeometry([
    Part.Circle(V(20, -222, 0), V(0, 0, 1), 1.5),  # 0
    Part.Circle(V(70.8, -222, 0), V(0, 0, 1), 1.5),  # 1
    Part.Circle(V(70.8, -18.8, 0), V(0, 0, 1), 1.5),  # 2
    Part.Circle(V(20, -18.8, 0), V(0, 0, 1), 1.5),  # 3
    Part.Circle(V(13.7, -120.4, 0), V(0, 0, 1), 1.5),  # 4
    Part.Circle(V(77.2, -120.4, 0), V(0, 0, 1), 1.5),  # 5
], False)
sketch9.addConstraint([
    Sketcher.Constraint("Equal", 0, 1),
    Sketcher.Constraint("Equal", 1, 2),
    Sketcher.Constraint("Equal", 2, 3),
    Sketcher.Constraint("Equal", 3, 4),
    Sketcher.Constraint("Equal", 4, 5),
    Sketcher.Constraint("Horizontal", 0, 3, 1, 3),
    Sketcher.Constraint("Horizontal", 2, 3, 3, 3),
    Sketcher.Constraint("Horizontal", 4, 3, 5, 3),
    Sketcher.Constraint("Vertical", 1, 3, 2, 3),
    Sketcher.Constraint("Vertical", 0, 3, 3, 3),
    Sketcher.Constraint("Diameter", 0, Q("0.116 in")),
    Sketcher.Constraint("DistanceX", 0, 3, 1, 3, Q("2 in")),
    Sketcher.Constraint("DistanceY", 1, 3, 2, 3, Q("8 in")),
    Sketcher.Constraint("DistanceY", 0, 3, 4, 3, Q("4 in")),
    Sketcher.Constraint("DistanceX", 4, 3, 5, 3, Q("2.5 in")),
    Sketcher.Constraint("DistanceX", 4, 3, 0, 3, Q("0.25 in")),
    Sketcher.Constraint("DistanceY", 0, 3, -1, 1, Q("221.995151 mm")),
    Sketcher.Constraint("DistanceX", -1, 1, 0, 3, Q("20.005686 mm")),
])
pocket8 = body.newObject("PartDesign::Pocket", "Pocket007")
pocket8.Profile = sketch9
pocket8.Type = "ThroughAll"
pocket8.Midplane = True

doc.recompute()
